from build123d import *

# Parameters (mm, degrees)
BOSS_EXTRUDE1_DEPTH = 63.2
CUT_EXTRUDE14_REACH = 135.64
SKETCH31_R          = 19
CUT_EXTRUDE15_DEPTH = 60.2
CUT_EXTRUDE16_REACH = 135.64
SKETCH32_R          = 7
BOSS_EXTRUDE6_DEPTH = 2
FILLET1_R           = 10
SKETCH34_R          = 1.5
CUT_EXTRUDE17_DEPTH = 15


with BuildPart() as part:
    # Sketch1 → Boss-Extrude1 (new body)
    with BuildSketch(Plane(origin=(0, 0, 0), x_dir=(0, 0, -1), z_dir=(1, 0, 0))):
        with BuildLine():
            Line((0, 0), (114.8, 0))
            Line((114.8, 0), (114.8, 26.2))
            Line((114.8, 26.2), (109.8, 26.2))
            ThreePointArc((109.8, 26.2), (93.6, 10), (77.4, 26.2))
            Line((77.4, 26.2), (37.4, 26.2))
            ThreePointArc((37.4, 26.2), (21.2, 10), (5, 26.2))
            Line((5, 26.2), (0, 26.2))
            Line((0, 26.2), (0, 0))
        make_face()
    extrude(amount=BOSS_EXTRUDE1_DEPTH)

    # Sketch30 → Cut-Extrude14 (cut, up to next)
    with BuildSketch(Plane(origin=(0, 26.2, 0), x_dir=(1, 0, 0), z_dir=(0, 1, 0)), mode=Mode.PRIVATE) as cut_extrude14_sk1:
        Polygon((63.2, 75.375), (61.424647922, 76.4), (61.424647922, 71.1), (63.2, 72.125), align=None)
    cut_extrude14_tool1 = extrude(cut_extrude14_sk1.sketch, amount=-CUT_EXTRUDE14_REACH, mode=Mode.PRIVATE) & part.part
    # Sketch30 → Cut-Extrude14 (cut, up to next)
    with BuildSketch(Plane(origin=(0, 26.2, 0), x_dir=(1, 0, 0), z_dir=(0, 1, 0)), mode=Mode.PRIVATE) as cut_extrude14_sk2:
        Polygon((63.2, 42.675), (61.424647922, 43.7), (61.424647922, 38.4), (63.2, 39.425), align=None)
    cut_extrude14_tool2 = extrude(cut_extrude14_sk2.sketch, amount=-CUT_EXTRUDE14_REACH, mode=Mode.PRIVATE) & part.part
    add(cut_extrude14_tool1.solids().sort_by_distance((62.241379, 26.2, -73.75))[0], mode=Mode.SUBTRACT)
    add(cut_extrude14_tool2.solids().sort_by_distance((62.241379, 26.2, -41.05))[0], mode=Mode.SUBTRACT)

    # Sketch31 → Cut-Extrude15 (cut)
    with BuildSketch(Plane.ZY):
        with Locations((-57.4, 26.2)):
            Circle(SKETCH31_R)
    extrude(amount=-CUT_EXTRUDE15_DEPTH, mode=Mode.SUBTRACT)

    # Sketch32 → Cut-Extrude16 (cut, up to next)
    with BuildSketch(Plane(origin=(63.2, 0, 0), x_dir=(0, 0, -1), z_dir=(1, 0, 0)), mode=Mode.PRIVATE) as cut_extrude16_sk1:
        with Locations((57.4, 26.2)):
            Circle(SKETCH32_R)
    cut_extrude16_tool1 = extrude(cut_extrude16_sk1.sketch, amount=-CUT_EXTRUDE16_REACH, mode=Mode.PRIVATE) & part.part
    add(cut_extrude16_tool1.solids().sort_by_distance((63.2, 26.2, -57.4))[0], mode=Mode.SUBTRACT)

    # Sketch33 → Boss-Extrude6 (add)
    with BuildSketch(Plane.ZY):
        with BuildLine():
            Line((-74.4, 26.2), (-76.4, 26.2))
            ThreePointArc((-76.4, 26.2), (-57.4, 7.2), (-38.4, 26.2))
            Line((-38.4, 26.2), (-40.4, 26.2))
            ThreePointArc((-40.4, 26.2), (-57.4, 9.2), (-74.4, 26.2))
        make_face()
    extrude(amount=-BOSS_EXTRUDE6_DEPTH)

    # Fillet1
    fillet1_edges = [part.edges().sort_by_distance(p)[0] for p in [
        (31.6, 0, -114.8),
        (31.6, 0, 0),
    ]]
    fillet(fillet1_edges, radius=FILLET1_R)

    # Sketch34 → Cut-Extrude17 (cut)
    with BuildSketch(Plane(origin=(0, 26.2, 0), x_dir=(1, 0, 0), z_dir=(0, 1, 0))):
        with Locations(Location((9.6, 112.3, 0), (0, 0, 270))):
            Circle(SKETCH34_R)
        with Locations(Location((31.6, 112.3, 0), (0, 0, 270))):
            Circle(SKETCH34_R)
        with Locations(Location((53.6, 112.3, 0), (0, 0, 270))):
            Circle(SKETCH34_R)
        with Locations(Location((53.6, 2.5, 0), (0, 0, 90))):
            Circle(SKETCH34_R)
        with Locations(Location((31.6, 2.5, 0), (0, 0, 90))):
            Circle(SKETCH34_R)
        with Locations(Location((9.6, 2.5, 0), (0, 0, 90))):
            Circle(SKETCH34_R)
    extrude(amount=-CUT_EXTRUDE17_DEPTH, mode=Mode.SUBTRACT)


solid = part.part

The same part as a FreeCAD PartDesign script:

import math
import FreeCAD as App
import Part
import Sketcher
Q = App.Units.Quantity


def edges_at(feature, points):
    """Names of the edges that pass closest to the given points."""
    edges = feature.Shape.Edges
    near = lambda p: min(range(len(edges)), key=lambda i: edges[i].distToShape(Part.Vertex(*p))[0])
    return sorted({f"Edge{near(p) + 1}" for p in points})

doc = App.newDocument("Part")
body = doc.addObject("PartDesign::Body", "Body")

sketch1 = doc.addObject("Sketcher::SketchObject", "Sketch")
body.addObject(sketch1)
sketch1.AttachmentSupport = (doc.YZ_Plane, [""])
sketch1.MapMode = "FlatFace"
sketch1.addGeometry([
    Part.LineSegment(App.Vector(0, 0, 0), App.Vector(0, -115, 0)),
    Part.LineSegment(App.Vector(0, -115, 0), App.Vector(26, -115, 0)),
    Part.LineSegment(App.Vector(26, -115, 0), App.Vector(26, -110, 0)),
    Part.ArcOfCircle(Part.Circle(App.Vector(26, -94, 0), App.Vector(0, 0, 1), 16), math.radians(90), math.radians(270)),
    Part.LineSegment(App.Vector(26, -77, 0), App.Vector(26, -37, 0)),
    Part.ArcOfCircle(Part.Circle(App.Vector(26, -21, 0), App.Vector(0, 0, 1), 16), math.radians(90), math.radians(270)),
    Part.LineSegment(App.Vector(26, -5, 0), App.Vector(26, 0, 0)),
    Part.LineSegment(App.Vector(26, 0, 0), App.Vector(0, 0, 0)),
], False)
sketch1.addConstraint([
    Sketcher.Constraint("Coincident", 0, 2, 1, 1),
    Sketcher.Constraint("Coincident", 1, 2, 2, 1),
    Sketcher.Constraint("Coincident", 2, 2, 3, 2),
    Sketcher.Constraint("Coincident", 3, 1, 4, 1),
    Sketcher.Constraint("Coincident", 4, 2, 5, 2),
    Sketcher.Constraint("Coincident", 5, 1, 6, 1),
    Sketcher.Constraint("Coincident", 6, 2, 7, 1),
    Sketcher.Constraint("Coincident", 7, 2, 0, 1),
    Sketcher.Constraint("Vertical", 0),
    Sketcher.Constraint("Horizontal", 1),
    Sketcher.Constraint("Vertical", 2),
    Sketcher.Constraint("Vertical", 4),
    Sketcher.Constraint("Vertical", 6),
    Sketcher.Constraint("Horizontal", 7),
    Sketcher.Constraint("Coincident", 7, 2, -1, 1),
    Sketcher.Constraint("Equal", 3, 5),
    Sketcher.Constraint("Vertical", 3, 3, 5, 3),
    Sketcher.Constraint("Vertical", 5, 3, 1, 2),
    Sketcher.Constraint("Vertical", 2, 2, 3, 1),
    Sketcher.Constraint("Vertical", 4, 2, 5, 1),
    Sketcher.Constraint("Equal", 2, 6),
    Sketcher.Constraint("Radius", 3, Q("16.2 mm")),
    Sketcher.Constraint("DistanceY", 2, 1, 2, 2, Q("5 mm")),
    Sketcher.Constraint("DistanceY", 4, 1, 4, 2, Q("40 mm")),
    Sketcher.Constraint("DistanceX", 1, 1, 1, 2, Q("26.2 mm")),
])
pad1 = doc.addObject("PartDesign::Pad", "Pad")
body.addObject(pad1)
pad1.Profile = sketch1
pad1.Length = 63.2

sketch2 = doc.addObject("Sketcher::SketchObject", "Sketch001")
body.addObject(sketch2)
sketch2.AttachmentSupport = (doc.XZ_Plane, [""])
sketch2.MapMode = "FlatFace"
sketch2.AttachmentOffset = App.Placement(App.Vector(0, 0, -26.2), App.Rotation())
sketch2.addGeometry([
    Part.LineSegment(App.Vector(63.2, -75.4, 0), App.Vector(61.4, -76.4, 0)),
    Part.LineSegment(App.Vector(61.4, -76.4, 0), App.Vector(61.4, -71.1, 0)),
    Part.LineSegment(App.Vector(61.4, -71.1, 0), App.Vector(63.2, -72.1, 0)),
    Part.LineSegment(App.Vector(63.2, -72.1, 0), App.Vector(63.2, -75.4, 0)),
], False)
sketch2.addConstraint([
    Sketcher.Constraint("Coincident", 0, 2, 1, 1),
    Sketcher.Constraint("Coincident", 1, 2, 2, 1),
    Sketcher.Constraint("Coincident", 2, 2, 3, 1),
    Sketcher.Constraint("Coincident", 3, 2, 0, 1),
    Sketcher.Constraint("Vertical", 1),
    Sketcher.Constraint("Vertical", 3),
    Sketcher.Constraint("Equal", 0, 2),
    Sketcher.Constraint("Angle", 0, Q("-150 deg")),
    Sketcher.Constraint("DistanceY", 1, 1, 1, 2, Q("5.3 mm")),
    Sketcher.Constraint("DistanceY", 3, 2, 3, 1, Q("3.25 mm")),
    Sketcher.Constraint("DistanceY", 0, 2, -1, 1, Q("76.4 mm")),
    Sketcher.Constraint("DistanceX", -1, 1, 2, 2, Q("63.2 mm")),
])
pocket1 = doc.addObject("PartDesign::Pocket", "Pocket")
body.addObject(pocket1)
pocket1.Profile = sketch2
pocket1.Type = "UpToFirst"
pocket1.Reversed = True

sketch3 = doc.addObject("Sketcher::SketchObject", "Sketch002")
body.addObject(sketch3)
sketch3.AttachmentSupport = (doc.XZ_Plane, [""])
sketch3.MapMode = "FlatFace"
sketch3.AttachmentOffset = App.Placement(App.Vector(0, 0, -26.2), App.Rotation())
sketch3.addGeometry([
    Part.LineSegment(App.Vector(63.2, -42.7, 0), App.Vector(61.4, -43.7, 0)),
    Part.LineSegment(App.Vector(61.4, -43.7, 0), App.Vector(61.4, -38.4, 0)),
    Part.LineSegment(App.Vector(61.4, -38.4, 0), App.Vector(63.2, -39.4, 0)),
    Part.LineSegment(App.Vector(63.2, -39.4, 0), App.Vector(63.2, -42.7, 0)),
], False)
sketch3.addConstraint([
    Sketcher.Constraint("Coincident", 0, 2, 1, 1),
    Sketcher.Constraint("Coincident", 1, 2, 2, 1),
    Sketcher.Constraint("Coincident", 2, 2, 3, 1),
    Sketcher.Constraint("Coincident", 3, 2, 0, 1),
    Sketcher.Constraint("Vertical", 1),
    Sketcher.Constraint("Vertical", 3),
    Sketcher.Constraint("Equal", 0, 2),
    Sketcher.Constraint("Angle", 0, Q("-150 deg")),
    Sketcher.Constraint("DistanceY", 1, 1, 1, 2, Q("5.3 mm")),
    Sketcher.Constraint("DistanceY", 3, 2, 3, 1, Q("3.25 mm")),
    Sketcher.Constraint("DistanceY", 0, 2, -1, 1, Q("43.7 mm")),
    Sketcher.Constraint("DistanceX", -1, 1, 2, 2, Q("63.2 mm")),
])
pocket2 = doc.addObject("PartDesign::Pocket", "Pocket001")
body.addObject(pocket2)
pocket2.Profile = sketch3
pocket2.Type = "UpToFirst"
pocket2.Reversed = True

sketch4 = doc.addObject("Sketcher::SketchObject", "Sketch003")
body.addObject(sketch4)
sketch4.AttachmentSupport = (doc.YZ_Plane, [""])
sketch4.MapMode = "FlatFace"
sketch4.addGeometry(Part.Circle(App.Vector(26, -57, 0), App.Vector(0, 0, 1), 19), False)
sketch4.addConstraint([
    Sketcher.Constraint("Diameter", 0, Q("38 mm")),
    Sketcher.Constraint("DistanceX", -1, 1, 0, 3, Q("26.2 mm")),
    Sketcher.Constraint("DistanceY", 0, 3, -1, 1, Q("57.4 mm")),
])
pocket3 = doc.addObject("PartDesign::Pocket", "Pocket002")
body.addObject(pocket3)
pocket3.Profile = sketch4
pocket3.Length = 60.2
pocket3.Reversed = True

sketch5 = doc.addObject("Sketcher::SketchObject", "Sketch004")
body.addObject(sketch5)
sketch5.AttachmentSupport = (doc.YZ_Plane, [""])
sketch5.MapMode = "FlatFace"
sketch5.AttachmentOffset = App.Placement(App.Vector(0, 0, 63.2), App.Rotation())
sketch5.addGeometry(Part.Circle(App.Vector(26, -57, 0), App.Vector(0, 0, 1), 7), False)
sketch5.addConstraint([
    Sketcher.Constraint("Diameter", 0, Q("14 mm")),
    Sketcher.Constraint("DistanceX", -1, 1, 0, 3, Q("26.2 mm")),
    Sketcher.Constraint("DistanceY", 0, 3, -1, 1, Q("57.4 mm")),
])
pocket4 = doc.addObject("PartDesign::Pocket", "Pocket003")
body.addObject(pocket4)
pocket4.Profile = sketch5
pocket4.Type = "UpToFirst"

sketch6 = doc.addObject("Sketcher::SketchObject", "Sketch005")
body.addObject(sketch6)
sketch6.AttachmentSupport = (doc.YZ_Plane, [""])
sketch6.MapMode = "FlatFace"
sketch6.addGeometry([
    Part.LineSegment(App.Vector(26.2, -74.4, 0), App.Vector(26.2, -76.4, 0)),
    Part.ArcOfCircle(Part.Circle(App.Vector(26.2, -57.4, 0), App.Vector(0, 0, 1), 19), math.radians(90), math.radians(270)),
    Part.LineSegment(App.Vector(26.2, -38.4, 0), App.Vector(26.2, -40.4, 0)),
    Part.ArcOfCircle(Part.Circle(App.Vector(26.2, -57.4, 0), App.Vector(0, 0, 1), 17), math.radians(90), math.radians(270)),
], False)
sketch6.addConstraint([
    Sketcher.Constraint("Coincident", 0, 2, 1, 2),
    Sketcher.Constraint("Coincident", 1, 1, 2, 1),
    Sketcher.Constraint("Coincident", 2, 2, 3, 1),
    Sketcher.Constraint("Coincident", 3, 2, 0, 1),
    Sketcher.Constraint("Vertical", 0),
    Sketcher.Constraint("Vertical", 2),
    Sketcher.Constraint("Coincident", 3, 3, 1, 3),
    Sketcher.Constraint("Vertical", 3, 3, 0, 2),
    Sketcher.Constraint("Vertical", 0, 2, 1, 1),
    Sketcher.Constraint("Radius", 1, Q("19 mm")),
    Sketcher.Constraint("Radius", 3, Q("17 mm")),
    Sketcher.Constraint("DistanceX", -1, 1, 1, 3, Q("26.2 mm")),
    Sketcher.Constraint("DistanceY", 1, 3, -1, 1, Q("57.4 mm")),
])
pad2 = doc.addObject("PartDesign::Pad", "Pad001")
body.addObject(pad2)
pad2.Profile = sketch6
pad2.Length = 2
doc.recompute()

fillet = doc.addObject("PartDesign::Fillet", "Fillet")
body.addObject(fillet)
fillet.Base = (pad2, edges_at(pad2, [(31.6, 0, -114.8), (31.6, 0, 0)]))
fillet.Radius = 10

sketch7 = doc.addObject("Sketcher::SketchObject", "Sketch006")
body.addObject(sketch7)
sketch7.AttachmentSupport = (doc.XZ_Plane, [""])
sketch7.MapMode = "FlatFace"
sketch7.AttachmentOffset = App.Placement(App.Vector(0, 0, -26.2), App.Rotation())
sketch7.addGeometry([
    Part.Circle(App.Vector(9.6, -112.3, 0), App.Vector(0, 0, 1), 1.5),
    Part.Circle(App.Vector(31.6, -112.3, 0), App.Vector(0, 0, 1), 1.5),
    Part.Circle(App.Vector(53.6, -112.3, 0), App.Vector(0, 0, 1), 1.5),
    Part.Circle(App.Vector(53.6, -2.5, 0), App.Vector(0, 0, 1), 1.5),
    Part.Circle(App.Vector(31.6, -2.5, 0), App.Vector(0, 0, 1), 1.5),
    Part.Circle(App.Vector(9.6, -2.5, 0), App.Vector(0, 0, 1), 1.5),
], False)
sketch7.addConstraint([
    Sketcher.Constraint("Equal", 0, 1),
    Sketcher.Constraint("Equal", 1, 2),
    Sketcher.Constraint("Equal", 2, 3),
    Sketcher.Constraint("Equal", 3, 4),
    Sketcher.Constraint("Equal", 4, 5),
    Sketcher.Constraint("Horizontal", 0, 3, 1, 3),
    Sketcher.Constraint("Horizontal", 1, 3, 2, 3),
    Sketcher.Constraint("Horizontal", 3, 3, 4, 3),
    Sketcher.Constraint("Horizontal", 4, 3, 5, 3),
    Sketcher.Constraint("Vertical", 2, 3, 3, 3),
    Sketcher.Constraint("Vertical", 1, 3, 4, 3),
    Sketcher.Constraint("Vertical", 0, 3, 5, 3),
    Sketcher.Constraint("Diameter", 0, Q("3 mm")),
    Sketcher.Constraint("DistanceX", 0, 3, 1, 3, Q("22 mm")),
    Sketcher.Constraint("DistanceX", 1, 3, 2, 3, Q("22 mm")),
    Sketcher.Constraint("DistanceX", -1, 1, 0, 3, Q("9.6 mm")),
    Sketcher.Constraint("DistanceY", 0, 3, -1, 1, Q("112.3 mm")),
    Sketcher.Constraint("DistanceY", 3, 3, -1, 1, Q("2.5 mm")),
])
pocket5 = doc.addObject("PartDesign::Pocket", "Pocket004")
body.addObject(pocket5)
pocket5.Profile = sketch7
pocket5.Length = 15
pocket5.Reversed = True

doc.recompute()
